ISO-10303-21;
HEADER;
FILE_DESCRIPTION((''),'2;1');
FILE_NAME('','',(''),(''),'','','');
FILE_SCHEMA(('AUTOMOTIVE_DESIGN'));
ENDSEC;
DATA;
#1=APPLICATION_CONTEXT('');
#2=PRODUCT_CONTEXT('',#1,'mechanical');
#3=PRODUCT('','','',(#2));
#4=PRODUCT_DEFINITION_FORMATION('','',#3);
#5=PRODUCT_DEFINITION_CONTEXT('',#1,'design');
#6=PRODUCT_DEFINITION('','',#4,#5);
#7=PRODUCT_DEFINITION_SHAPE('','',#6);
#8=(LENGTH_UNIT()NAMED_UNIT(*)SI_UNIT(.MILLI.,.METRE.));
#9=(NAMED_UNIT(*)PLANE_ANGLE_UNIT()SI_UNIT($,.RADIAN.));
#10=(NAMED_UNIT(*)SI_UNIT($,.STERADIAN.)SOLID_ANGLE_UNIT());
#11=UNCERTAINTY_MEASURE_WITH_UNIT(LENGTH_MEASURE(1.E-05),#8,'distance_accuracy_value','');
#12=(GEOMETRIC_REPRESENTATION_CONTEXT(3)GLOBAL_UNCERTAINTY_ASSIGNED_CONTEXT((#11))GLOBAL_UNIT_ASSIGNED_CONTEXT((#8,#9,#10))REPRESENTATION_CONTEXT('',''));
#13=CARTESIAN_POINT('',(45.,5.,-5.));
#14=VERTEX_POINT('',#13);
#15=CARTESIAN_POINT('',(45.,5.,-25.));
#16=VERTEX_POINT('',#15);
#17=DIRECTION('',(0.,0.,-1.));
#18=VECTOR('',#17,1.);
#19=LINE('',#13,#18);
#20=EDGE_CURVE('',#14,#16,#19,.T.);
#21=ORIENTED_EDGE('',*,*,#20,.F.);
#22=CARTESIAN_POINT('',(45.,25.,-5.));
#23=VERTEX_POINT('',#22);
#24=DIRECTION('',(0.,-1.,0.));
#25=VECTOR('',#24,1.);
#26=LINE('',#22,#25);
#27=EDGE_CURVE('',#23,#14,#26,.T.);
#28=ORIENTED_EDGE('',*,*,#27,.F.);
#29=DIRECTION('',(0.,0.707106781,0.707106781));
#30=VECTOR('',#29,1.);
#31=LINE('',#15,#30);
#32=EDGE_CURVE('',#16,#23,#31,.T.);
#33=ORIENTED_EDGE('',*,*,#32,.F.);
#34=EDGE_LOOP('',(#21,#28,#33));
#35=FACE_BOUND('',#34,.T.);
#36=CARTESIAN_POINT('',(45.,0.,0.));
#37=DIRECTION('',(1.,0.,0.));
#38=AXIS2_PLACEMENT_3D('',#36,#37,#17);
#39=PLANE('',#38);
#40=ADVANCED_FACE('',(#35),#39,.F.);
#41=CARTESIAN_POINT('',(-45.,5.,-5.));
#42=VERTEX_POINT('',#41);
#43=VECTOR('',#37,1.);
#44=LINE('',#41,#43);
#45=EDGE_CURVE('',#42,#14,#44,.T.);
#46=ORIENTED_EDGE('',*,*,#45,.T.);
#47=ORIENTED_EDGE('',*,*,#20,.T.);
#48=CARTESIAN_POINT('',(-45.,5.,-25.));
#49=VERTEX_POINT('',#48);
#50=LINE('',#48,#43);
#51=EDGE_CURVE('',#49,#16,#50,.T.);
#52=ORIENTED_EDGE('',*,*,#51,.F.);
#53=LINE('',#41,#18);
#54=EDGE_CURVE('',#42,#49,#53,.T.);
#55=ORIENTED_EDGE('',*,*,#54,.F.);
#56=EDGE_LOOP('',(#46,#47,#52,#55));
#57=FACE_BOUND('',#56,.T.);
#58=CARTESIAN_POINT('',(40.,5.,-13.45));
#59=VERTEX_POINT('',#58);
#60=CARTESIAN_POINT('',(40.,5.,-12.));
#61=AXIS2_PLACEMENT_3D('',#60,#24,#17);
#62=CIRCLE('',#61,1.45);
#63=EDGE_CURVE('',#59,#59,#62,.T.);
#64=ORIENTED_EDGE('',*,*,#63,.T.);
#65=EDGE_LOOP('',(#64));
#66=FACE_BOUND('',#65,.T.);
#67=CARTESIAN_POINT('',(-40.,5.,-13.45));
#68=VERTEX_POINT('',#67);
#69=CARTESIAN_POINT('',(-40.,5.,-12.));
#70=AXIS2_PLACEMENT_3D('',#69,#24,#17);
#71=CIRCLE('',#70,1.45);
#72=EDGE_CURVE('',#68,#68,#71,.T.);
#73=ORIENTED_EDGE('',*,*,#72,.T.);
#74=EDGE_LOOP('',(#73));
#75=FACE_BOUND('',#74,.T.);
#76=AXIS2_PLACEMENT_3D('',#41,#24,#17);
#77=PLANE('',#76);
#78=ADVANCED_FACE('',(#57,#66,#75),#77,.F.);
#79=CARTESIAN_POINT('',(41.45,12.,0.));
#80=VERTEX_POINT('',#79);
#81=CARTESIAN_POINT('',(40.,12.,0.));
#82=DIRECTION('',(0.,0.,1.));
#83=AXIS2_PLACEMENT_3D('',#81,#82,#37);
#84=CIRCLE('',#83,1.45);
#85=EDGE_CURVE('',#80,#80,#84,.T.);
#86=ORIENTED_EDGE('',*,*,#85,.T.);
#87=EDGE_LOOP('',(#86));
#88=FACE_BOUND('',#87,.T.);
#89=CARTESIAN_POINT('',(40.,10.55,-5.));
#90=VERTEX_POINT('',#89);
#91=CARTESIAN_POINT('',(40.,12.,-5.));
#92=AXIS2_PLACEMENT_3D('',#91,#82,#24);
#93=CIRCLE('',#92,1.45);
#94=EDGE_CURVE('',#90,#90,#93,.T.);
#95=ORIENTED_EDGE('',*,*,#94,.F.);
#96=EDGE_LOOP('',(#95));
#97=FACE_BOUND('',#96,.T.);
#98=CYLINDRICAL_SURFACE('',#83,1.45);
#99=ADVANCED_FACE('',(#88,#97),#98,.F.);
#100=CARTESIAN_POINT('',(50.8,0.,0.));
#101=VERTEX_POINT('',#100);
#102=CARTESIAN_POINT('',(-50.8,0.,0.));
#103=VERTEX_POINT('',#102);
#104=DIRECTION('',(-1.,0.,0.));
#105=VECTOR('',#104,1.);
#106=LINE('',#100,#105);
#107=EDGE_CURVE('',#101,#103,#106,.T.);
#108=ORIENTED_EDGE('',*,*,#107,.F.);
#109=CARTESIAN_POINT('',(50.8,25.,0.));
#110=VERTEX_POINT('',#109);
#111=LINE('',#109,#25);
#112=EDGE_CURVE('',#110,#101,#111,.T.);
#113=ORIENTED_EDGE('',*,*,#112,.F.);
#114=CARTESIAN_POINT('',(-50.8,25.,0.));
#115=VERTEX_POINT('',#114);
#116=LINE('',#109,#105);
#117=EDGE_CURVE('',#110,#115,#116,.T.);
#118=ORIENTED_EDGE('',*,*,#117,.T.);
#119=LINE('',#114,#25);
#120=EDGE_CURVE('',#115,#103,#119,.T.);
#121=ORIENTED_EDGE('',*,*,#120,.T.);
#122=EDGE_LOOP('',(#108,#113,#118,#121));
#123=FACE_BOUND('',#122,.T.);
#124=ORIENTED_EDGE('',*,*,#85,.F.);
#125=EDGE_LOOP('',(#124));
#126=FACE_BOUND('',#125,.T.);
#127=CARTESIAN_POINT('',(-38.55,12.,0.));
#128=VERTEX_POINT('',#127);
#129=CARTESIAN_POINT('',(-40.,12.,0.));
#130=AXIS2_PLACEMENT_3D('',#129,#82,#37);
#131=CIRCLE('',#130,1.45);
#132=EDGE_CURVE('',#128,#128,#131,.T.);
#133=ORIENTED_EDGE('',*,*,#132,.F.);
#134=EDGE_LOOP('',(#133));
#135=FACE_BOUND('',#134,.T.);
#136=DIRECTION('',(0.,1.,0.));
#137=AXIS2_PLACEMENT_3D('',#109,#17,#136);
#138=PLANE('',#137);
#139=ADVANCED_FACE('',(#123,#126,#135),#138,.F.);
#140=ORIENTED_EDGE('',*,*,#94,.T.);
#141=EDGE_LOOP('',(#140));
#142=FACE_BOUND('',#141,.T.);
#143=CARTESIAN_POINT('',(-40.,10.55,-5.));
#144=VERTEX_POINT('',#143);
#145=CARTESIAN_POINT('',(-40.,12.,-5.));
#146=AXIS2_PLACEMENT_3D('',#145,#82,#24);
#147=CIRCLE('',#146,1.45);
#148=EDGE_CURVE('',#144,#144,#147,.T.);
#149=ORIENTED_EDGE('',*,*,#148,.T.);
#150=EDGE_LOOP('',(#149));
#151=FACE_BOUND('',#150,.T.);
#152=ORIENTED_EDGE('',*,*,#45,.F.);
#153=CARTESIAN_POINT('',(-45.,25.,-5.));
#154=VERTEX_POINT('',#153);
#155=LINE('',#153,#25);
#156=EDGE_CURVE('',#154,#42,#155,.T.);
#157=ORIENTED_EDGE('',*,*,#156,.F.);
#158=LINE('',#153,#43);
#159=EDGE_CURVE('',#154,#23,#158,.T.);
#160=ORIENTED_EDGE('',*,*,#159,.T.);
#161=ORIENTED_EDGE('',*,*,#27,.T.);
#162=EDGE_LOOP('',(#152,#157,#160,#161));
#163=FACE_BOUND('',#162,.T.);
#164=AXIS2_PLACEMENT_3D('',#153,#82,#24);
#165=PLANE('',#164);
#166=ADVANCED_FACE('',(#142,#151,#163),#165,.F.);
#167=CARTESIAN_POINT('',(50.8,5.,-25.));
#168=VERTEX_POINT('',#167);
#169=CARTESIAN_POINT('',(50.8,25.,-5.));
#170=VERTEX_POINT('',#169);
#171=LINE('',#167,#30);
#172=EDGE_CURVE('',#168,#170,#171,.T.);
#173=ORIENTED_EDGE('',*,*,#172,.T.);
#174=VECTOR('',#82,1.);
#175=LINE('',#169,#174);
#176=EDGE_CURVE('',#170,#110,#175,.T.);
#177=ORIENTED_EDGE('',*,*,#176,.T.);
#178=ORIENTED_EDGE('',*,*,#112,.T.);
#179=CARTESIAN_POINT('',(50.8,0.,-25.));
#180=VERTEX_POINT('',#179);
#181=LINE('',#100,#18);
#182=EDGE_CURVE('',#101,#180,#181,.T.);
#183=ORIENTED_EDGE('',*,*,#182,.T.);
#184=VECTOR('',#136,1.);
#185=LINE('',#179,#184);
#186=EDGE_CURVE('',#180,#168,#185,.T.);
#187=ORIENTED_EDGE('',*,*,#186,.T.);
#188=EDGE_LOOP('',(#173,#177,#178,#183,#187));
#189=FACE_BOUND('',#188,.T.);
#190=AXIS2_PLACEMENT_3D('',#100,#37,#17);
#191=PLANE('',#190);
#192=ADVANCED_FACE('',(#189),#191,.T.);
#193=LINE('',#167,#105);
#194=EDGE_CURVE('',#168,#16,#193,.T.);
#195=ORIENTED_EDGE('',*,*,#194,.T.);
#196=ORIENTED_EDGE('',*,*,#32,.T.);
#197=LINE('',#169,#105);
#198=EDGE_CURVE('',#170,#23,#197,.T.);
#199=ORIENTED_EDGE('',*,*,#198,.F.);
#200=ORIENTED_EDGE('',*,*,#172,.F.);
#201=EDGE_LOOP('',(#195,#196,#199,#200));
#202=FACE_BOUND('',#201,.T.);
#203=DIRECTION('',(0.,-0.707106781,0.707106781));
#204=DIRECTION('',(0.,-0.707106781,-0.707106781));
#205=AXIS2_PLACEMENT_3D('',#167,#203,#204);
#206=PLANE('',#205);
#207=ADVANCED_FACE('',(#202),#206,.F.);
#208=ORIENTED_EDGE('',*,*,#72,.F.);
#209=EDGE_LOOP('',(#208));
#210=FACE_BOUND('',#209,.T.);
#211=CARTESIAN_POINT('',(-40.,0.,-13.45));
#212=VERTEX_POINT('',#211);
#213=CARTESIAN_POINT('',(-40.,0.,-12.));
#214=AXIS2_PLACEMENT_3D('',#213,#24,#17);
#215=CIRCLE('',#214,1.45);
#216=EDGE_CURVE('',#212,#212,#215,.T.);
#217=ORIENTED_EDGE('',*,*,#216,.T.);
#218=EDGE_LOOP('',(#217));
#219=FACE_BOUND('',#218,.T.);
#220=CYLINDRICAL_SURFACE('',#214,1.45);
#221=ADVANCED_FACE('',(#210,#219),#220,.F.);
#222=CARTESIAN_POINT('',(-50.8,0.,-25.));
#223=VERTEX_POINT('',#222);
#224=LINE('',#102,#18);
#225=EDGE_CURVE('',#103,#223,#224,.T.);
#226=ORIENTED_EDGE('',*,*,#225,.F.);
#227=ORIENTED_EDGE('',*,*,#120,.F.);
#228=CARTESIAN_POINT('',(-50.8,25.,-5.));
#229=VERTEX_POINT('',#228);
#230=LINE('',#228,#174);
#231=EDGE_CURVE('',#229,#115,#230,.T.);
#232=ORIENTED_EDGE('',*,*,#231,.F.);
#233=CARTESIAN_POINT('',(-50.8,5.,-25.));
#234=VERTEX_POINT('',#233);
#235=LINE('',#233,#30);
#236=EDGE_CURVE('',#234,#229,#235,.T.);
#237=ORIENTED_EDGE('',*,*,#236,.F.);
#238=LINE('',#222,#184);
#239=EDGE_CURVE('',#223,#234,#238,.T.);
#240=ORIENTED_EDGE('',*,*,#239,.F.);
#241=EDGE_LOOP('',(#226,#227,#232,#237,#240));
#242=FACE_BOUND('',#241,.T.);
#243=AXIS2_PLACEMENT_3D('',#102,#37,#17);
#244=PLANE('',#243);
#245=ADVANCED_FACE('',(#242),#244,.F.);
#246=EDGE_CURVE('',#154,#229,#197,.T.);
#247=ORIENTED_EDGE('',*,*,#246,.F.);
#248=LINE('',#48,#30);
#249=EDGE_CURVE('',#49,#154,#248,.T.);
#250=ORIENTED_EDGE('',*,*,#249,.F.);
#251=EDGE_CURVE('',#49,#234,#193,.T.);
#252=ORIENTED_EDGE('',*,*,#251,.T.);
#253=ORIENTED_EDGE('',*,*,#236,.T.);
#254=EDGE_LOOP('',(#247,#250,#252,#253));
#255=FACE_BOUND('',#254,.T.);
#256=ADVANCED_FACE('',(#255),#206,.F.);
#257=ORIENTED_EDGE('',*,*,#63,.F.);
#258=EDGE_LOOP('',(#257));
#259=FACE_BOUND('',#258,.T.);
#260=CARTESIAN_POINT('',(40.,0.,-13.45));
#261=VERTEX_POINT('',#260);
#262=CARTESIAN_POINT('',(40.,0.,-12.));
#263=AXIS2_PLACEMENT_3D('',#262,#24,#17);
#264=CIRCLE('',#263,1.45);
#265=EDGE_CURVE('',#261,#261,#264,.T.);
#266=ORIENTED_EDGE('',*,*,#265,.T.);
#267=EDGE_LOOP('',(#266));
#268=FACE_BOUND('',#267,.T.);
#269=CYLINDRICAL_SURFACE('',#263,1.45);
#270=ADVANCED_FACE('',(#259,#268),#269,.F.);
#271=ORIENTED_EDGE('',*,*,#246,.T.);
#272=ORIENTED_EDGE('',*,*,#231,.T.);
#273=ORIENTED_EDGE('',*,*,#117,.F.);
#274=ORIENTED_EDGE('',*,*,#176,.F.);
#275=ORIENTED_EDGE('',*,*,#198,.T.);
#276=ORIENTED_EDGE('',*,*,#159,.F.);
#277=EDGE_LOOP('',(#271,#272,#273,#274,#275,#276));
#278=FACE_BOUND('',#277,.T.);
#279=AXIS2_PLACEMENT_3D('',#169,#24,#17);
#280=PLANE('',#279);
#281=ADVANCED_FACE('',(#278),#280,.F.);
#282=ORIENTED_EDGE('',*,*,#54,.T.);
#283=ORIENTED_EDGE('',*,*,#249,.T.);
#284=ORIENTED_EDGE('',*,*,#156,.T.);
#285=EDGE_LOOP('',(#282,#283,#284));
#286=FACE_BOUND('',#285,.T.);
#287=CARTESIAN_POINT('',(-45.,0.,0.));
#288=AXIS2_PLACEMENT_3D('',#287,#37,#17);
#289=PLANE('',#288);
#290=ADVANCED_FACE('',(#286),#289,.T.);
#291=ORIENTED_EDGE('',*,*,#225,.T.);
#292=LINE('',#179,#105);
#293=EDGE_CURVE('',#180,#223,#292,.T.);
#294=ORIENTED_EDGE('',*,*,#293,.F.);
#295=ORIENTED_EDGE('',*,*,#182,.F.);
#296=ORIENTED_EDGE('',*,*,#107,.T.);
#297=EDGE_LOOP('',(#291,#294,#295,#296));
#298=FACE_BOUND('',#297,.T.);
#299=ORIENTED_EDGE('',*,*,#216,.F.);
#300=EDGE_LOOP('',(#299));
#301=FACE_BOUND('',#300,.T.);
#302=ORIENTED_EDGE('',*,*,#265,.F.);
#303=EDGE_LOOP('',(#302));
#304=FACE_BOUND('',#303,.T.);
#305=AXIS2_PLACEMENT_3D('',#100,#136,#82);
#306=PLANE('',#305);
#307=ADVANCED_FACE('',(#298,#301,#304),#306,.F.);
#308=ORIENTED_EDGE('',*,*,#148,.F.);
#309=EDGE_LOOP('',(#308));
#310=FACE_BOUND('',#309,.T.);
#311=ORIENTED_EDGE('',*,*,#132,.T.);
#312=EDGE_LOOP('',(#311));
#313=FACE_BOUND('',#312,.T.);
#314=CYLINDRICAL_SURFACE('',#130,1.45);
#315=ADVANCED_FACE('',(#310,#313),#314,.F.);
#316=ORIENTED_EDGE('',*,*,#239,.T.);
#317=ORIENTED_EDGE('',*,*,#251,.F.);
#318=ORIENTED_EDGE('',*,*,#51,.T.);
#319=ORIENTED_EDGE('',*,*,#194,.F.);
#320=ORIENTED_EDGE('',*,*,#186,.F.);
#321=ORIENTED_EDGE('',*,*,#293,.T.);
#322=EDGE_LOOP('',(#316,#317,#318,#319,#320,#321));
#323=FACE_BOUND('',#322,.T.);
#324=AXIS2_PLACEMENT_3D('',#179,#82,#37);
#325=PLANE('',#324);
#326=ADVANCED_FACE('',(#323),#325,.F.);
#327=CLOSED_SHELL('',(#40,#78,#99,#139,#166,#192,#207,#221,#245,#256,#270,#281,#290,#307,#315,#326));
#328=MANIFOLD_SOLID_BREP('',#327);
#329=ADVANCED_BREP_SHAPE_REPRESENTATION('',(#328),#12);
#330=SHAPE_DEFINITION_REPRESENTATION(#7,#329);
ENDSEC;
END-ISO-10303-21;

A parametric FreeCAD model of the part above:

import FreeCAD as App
import Part
import Sketcher
from FreeCAD import Vector


def add_polygon(sketch, points):
    """Adds a closed chain of lines whose ends are joined by coincident constraints."""
    first, n = sketch.GeometryCount, len(points)
    for a, b in zip(points, points[1:] + points[:1]):
        sketch.addGeometry(Part.LineSegment(App.Vector(*a, 0), App.Vector(*b, 0)), False)
    for i in range(n):
        sketch.addConstraint(Sketcher.Constraint("Coincident", first + i, 2, first + (i + 1) % n, 1))

doc = App.newDocument("Part")
body = doc.addObject("PartDesign::Body", "Body")

# Sketch on YZ plane
sketch1 = body.newObject("Sketcher::SketchObject", "Sketch")
sketch1.AttachmentSupport = (doc.getObject("YZ_Plane"), [""])
sketch1.MapMode = "FlatFace"
sketch1.AttachmentOffset = App.Placement(Vector(0, 0, -50.8), App.Rotation())
add_polygon(sketch1, [(25, 0), (0, 0), (0, -25), (5, -25), (25, -5)])  # lines 0-4
sketch1.addConstraint(Sketcher.Constraint("Horizontal", 0))
sketch1.addConstraint(Sketcher.Constraint("Vertical", 1))
sketch1.addConstraint(Sketcher.Constraint("Horizontal", 2))
sketch1.addConstraint(Sketcher.Constraint("Vertical", 4))
sketch1.addConstraint(Sketcher.Constraint("Coincident", 0, 2, -1, 1))
sketch1.addConstraint(Sketcher.Constraint("Equal", 0, 1))
sketch1.addConstraint(Sketcher.Constraint("Equal", 2, 4))
sketch1.addConstraint(Sketcher.Constraint("DistanceX", 0, 2, 0, 1, 25.0))
sketch1.addConstraint(Sketcher.Constraint("DistanceX", 2, 1, 2, 2, 5.0))
pad1 = body.newObject("PartDesign::Pad", "Pad")
pad1.Profile = sketch1
pad1.Length = 101.6

# Sketch on YZ plane
sketch2 = body.newObject("Sketcher::SketchObject", "Sketch001")
sketch2.AttachmentSupport = (doc.getObject("YZ_Plane"), [""])
sketch2.MapMode = "FlatFace"
sketch2.AttachmentOffset = App.Placement(Vector(0, 0, 45), App.Rotation())
add_polygon(sketch2, [(25, -5), (5, -5), (5, -25), (25, -25)])  # lines 0-3
sketch2.addConstraint(Sketcher.Constraint("Horizontal", 0))
sketch2.addConstraint(Sketcher.Constraint("Vertical", 1))
sketch2.addConstraint(Sketcher.Constraint("Horizontal", 2))
sketch2.addConstraint(Sketcher.Constraint("Vertical", 3))
sketch2.addConstraint(Sketcher.Constraint("Equal", 2, 1))
sketch2.addConstraint(Sketcher.Constraint("DistanceX", 0, 2, 0, 1, 20.0))
sketch2.addConstraint(Sketcher.Constraint("DistanceX", -1, 1, 0, 2, 5.0))
sketch2.addConstraint(Sketcher.Constraint("DistanceY", 0, 2, -1, 1, 5.0))
pocket1 = body.newObject("PartDesign::Pocket", "Pocket")
pocket1.Profile = sketch2
pocket1.Length = 90

# Sketch on XZ plane
sketch3 = body.newObject("Sketcher::SketchObject", "Sketch002")
sketch3.AttachmentSupport = (doc.getObject("XZ_Plane"), [""])
sketch3.MapMode = "FlatFace"
sketch3.addGeometry(Part.Circle(Vector(-40, -12, 0), Vector(0, 0, 1), 1.45), False)
sketch3.addGeometry(Part.Circle(Vector(40, -12, 0), Vector(0, 0, 1), 1.45), False)
sketch3.addConstraint(Sketcher.Constraint("Equal", 0, 1))
sketch3.addConstraint(Sketcher.Constraint("Symmetric", 0, 3, 1, 3, -2))
sketch3.addConstraint(Sketcher.Constraint("Diameter", 0, 2.9))
sketch3.addConstraint(Sketcher.Constraint("DistanceX", 0, 3, -1, 1, 40.0))
sketch3.addConstraint(Sketcher.Constraint("DistanceY", 0, 3, -1, 1, 12.0))
doc.recompute()
hole = body.newObject("PartDesign::Hole", "Hole")
hole.Profile = sketch3
hole.ThreadType = "None"
hole.Diameter = 2.9
hole.DepthType = "ThroughAll"

# Sketch on XY plane
sketch4 = body.newObject("Sketcher::SketchObject", "Sketch003")
sketch4.AttachmentSupport = (doc.getObject("XY_Plane"), [""])
sketch4.MapMode = "FlatFace"
sketch4.addGeometry(Part.Circle(Vector(-40, 12, 0), Vector(0, 0, 1), 1.45), False)
sketch4.addGeometry(Part.Circle(Vector(40, 12, 0), Vector(0, 0, 1), 1.45), False)
sketch4.addConstraint(Sketcher.Constraint("Equal", 0, 1))
sketch4.addConstraint(Sketcher.Constraint("Symmetric", 0, 3, 1, 3, -2))
sketch4.addConstraint(Sketcher.Constraint("Diameter", 0, 2.9))
sketch4.addConstraint(Sketcher.Constraint("DistanceX", 0, 3, -1, 1, 40.0))
sketch4.addConstraint(Sketcher.Constraint("DistanceY", -1, 1, 0, 3, 12.0))
doc.recompute()
hole2 = body.newObject("PartDesign::Hole", "Hole001")
hole2.Profile = sketch4
hole2.ThreadType = "None"
hole2.Diameter = 2.9
hole2.DepthType = "ThroughAll"

doc.recompute()
